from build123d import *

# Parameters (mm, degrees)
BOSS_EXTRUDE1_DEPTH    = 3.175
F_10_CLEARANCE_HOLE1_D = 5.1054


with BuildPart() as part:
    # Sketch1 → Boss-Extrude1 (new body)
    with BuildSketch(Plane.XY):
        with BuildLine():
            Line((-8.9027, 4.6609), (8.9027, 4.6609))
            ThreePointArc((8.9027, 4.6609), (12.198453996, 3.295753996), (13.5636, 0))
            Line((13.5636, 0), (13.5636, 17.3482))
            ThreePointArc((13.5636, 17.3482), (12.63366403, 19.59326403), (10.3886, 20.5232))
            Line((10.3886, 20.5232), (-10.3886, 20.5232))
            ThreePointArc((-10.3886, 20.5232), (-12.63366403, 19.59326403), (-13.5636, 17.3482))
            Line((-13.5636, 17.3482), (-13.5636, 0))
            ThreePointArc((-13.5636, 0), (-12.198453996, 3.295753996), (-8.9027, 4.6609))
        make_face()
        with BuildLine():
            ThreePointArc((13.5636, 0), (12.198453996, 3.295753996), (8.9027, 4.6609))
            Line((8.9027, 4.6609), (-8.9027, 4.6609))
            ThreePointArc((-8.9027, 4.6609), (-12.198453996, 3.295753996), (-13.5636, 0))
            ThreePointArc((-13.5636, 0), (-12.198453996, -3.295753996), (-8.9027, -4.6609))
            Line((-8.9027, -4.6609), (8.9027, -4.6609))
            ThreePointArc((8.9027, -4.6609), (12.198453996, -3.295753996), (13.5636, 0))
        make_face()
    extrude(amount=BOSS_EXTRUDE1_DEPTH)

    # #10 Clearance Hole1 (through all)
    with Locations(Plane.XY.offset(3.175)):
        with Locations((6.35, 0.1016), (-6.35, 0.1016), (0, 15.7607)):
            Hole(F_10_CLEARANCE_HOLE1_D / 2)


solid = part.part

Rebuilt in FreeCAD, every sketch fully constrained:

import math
import FreeCAD as App
import Part
import Sketcher
Q = App.Units.Quantity

doc = App.newDocument("Part")
body = doc.addObject("PartDesign::Body", "Body")

sketch1 = body.newObject("Sketcher::SketchObject", "Sketch")
sketch1.AttachmentSupport = (doc.getObject("XY_Plane"), [""])
sketch1.MapMode = "FlatFace"
sketch1.addGeometry([
    Part.LineSegment(App.Vector(13.5636, 0, 0), App.Vector(13.5636, 17.3482, 0)),
    Part.ArcOfCircle(Part.Circle(App.Vector(10.3886, 17.3482, 0), App.Vector(0, 0, 1), 3.175), math.radians(0), math.radians(90)),
    Part.LineSegment(App.Vector(10.3886, 20.5232, 0), App.Vector(-10.3886, 20.5232, 0)),
    Part.ArcOfCircle(Part.Circle(App.Vector(-10.3886, 17.3482, 0), App.Vector(0, 0, 1), 3.175), math.radians(90), math.radians(180)),
    Part.LineSegment(App.Vector(-13.5636, 17.3482, 0), App.Vector(-13.5636, 0, 0)),
    Part.ArcOfCircle(Part.Circle(App.Vector(-8.9027, 0, 0), App.Vector(0, 0, 1), 4.6609), math.radians(-180), math.radians(-90)),
    Part.LineSegment(App.Vector(-8.9027, -4.6609, 0), App.Vector(8.9027, -4.6609, 0)),
    Part.ArcOfCircle(Part.Circle(App.Vector(8.9027, 0, 0), App.Vector(0, 0, 1), 4.6609), math.radians(-90), math.radians(0)),
], False)
sketch1.addConstraint([
    Sketcher.Constraint("Tangent", 0, 2, 1, 1),
    Sketcher.Constraint("Tangent", 1, 2, 2, 1),
    Sketcher.Constraint("Tangent", 2, 2, 3, 1),
    Sketcher.Constraint("Tangent", 3, 2, 4, 1),
    Sketcher.Constraint("Tangent", 4, 2, 5, 1),
    Sketcher.Constraint("Tangent", 5, 2, 6, 1),
    Sketcher.Constraint("Tangent", 6, 2, 7, 1),
    Sketcher.Constraint("Tangent", 7, 2, 0, 1),
    Sketcher.Constraint("Vertical", 0),
    Sketcher.Constraint("Horizontal", 2),
    Sketcher.Constraint("Vertical", 4),
    Sketcher.Constraint("Horizontal", 6),
    Sketcher.Constraint("Equal", 1, 3),
    Sketcher.Constraint("Equal", 5, 7),
    Sketcher.Constraint("Symmetric", 5, 3, 7, 3, -1, 1),
    Sketcher.Constraint("Radius", 1, Q("0.125 in")),
    Sketcher.Constraint("Radius", 5, Q("0.1835 in")),
    Sketcher.Constraint("DistanceX", 2, 2, 2, 1, Q("0.818 in")),
    Sketcher.Constraint("DistanceY", 0, 1, 0, 2, Q("0.683 in")),
])
pad1 = body.newObject("PartDesign::Pad", "Pad")
pad1.Profile = sketch1
pad1.Length = Q("0.125 in")

sketch2 = body.newObject("Sketcher::SketchObject", "Sketch001")
sketch2.AttachmentSupport = (doc.getObject("XY_Plane"), [""])
sketch2.MapMode = "FlatFace"
sketch2.AttachmentOffset = App.Placement(App.Vector(0, 0, 0.125 * 25.4), App.Rotation())
sketch2.addGeometry([
    Part.Circle(App.Vector(6.35, 0.1016, 0), App.Vector(0, 0, 1), 2.5527),
    Part.Circle(App.Vector(-6.35, 0.1016, 0), App.Vector(0, 0, 1), 2.5527),
    Part.Circle(App.Vector(0, 15.7607, 0), App.Vector(0, 0, 1), 2.5527),
], False)
sketch2.addConstraint([
    Sketcher.Constraint("Equal", 0, 1),
    Sketcher.Constraint("Equal", 1, 2),
    Sketcher.Constraint("Symmetric", 0, 3, 1, 3, -2),
    Sketcher.Constraint("PointOnObject", 2, 3, -2),
    Sketcher.Constraint("Diameter", 0, Q("0.201 in")),
    Sketcher.Constraint("DistanceX", 1, 3, 0, 3, Q("0.5 in")),
    Sketcher.Constraint("DistanceY", -1, 1, 0, 3, Q("0.004 in")),
    Sketcher.Constraint("DistanceY", -1, 1, 2, 3, Q("0.6205 in")),
])
doc.recompute()
hole = body.newObject("PartDesign::Hole", "Hole")
hole.Profile = sketch2
hole.ThreadType = "None"
hole.Diameter = Q("0.201 in")
hole.DepthType = "ThroughAll"

doc.recompute()
